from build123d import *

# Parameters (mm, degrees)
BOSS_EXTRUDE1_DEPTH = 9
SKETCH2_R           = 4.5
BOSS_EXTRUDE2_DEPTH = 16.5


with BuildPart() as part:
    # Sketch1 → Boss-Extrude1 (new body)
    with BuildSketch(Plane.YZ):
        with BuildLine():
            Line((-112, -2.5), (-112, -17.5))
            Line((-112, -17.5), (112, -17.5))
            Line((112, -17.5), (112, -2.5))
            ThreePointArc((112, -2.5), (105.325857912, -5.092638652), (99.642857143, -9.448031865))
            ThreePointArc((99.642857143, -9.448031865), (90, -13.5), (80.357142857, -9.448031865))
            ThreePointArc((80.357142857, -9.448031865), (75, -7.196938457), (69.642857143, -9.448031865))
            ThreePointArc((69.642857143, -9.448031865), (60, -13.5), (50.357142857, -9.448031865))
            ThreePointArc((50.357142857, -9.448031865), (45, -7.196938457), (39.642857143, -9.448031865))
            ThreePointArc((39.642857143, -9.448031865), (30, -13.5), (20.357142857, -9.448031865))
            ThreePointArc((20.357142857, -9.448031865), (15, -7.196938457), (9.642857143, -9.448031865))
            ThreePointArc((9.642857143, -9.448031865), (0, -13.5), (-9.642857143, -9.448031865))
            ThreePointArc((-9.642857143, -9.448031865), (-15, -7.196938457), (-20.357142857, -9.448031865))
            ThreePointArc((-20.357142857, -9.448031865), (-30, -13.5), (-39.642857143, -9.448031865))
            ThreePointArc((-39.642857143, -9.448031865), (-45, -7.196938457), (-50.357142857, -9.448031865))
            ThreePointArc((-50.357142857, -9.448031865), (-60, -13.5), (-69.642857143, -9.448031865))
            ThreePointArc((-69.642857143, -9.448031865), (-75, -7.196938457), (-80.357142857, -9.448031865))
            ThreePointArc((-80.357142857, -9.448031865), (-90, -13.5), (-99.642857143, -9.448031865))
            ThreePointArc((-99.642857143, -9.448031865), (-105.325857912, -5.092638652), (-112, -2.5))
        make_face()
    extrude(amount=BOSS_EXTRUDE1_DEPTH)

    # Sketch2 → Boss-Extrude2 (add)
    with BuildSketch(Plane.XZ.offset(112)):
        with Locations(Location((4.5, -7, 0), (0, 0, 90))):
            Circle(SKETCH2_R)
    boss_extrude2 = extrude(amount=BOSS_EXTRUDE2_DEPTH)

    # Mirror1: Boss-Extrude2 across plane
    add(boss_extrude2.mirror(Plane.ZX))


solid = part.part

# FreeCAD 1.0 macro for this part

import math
import FreeCAD as App
import Part
import Sketcher
Q = App.Units.Quantity

doc = App.newDocument("Part")
body = doc.addObject("PartDesign::Body", "Body")

sketch1 = doc.addObject("Sketcher::SketchObject", "Sketch")
body.addObject(sketch1)
sketch1.AttachmentSupport = (doc.YZ_Plane, [""])
sketch1.MapMode = "FlatFace"
sketch1.addGeometry([
    Part.LineSegment(App.Vector(-112, -2, 0), App.Vector(-112, -18, 0)),
    Part.LineSegment(App.Vector(-112, -18, 0), App.Vector(112, -18, 0)),
    Part.LineSegment(App.Vector(112, -18, 0), App.Vector(112, -2, 0)),
    Part.ArcOfCircle(Part.Circle(App.Vector(118, -27, 0), App.Vector(0, 0, 1), 25), math.radians(103), math.radians(136)),
    Part.ArcOfCircle(Part.Circle(App.Vector(90, 0, 0), App.Vector(0, 0, 1), 14), math.radians(-136), math.radians(-44)),
    Part.ArcOfCircle(Part.Circle(App.Vector(75, -15, 0), App.Vector(0, 0, 1), 8), math.radians(44), math.radians(136)),
    Part.ArcOfCircle(Part.Circle(App.Vector(60, 0, 0), App.Vector(0, 0, 1), 14), math.radians(-136), math.radians(-44)),
    Part.ArcOfCircle(Part.Circle(App.Vector(45, -15, 0), App.Vector(0, 0, 1), 8), math.radians(44), math.radians(136)),
    Part.ArcOfCircle(Part.Circle(App.Vector(30, 0, 0), App.Vector(0, 0, 1), 14), math.radians(-136), math.radians(-44)),
    Part.ArcOfCircle(Part.Circle(App.Vector(15, -15, 0), App.Vector(0, 0, 1), 8), math.radians(44), math.radians(136)),
    Part.ArcOfCircle(Part.Circle(App.Vector(0, 0, 0), App.Vector(0, 0, 1), 14), math.radians(-136), math.radians(-44)),
    Part.ArcOfCircle(Part.Circle(App.Vector(-15, -15, 0), App.Vector(0, 0, 1), 8), math.radians(44), math.radians(136)),
    Part.ArcOfCircle(Part.Circle(App.Vector(-30, 0, 0), App.Vector(0, 0, 1), 14), math.radians(-136), math.radians(-44)),
    Part.ArcOfCircle(Part.Circle(App.Vector(-45, -15, 0), App.Vector(0, 0, 1), 8), math.radians(44), math.radians(136)),
    Part.ArcOfCircle(Part.Circle(App.Vector(-60, 0, 0), App.Vector(0, 0, 1), 14), math.radians(-136), math.radians(-44)),
    Part.ArcOfCircle(Part.Circle(App.Vector(-75, -15, 0), App.Vector(0, 0, 1), 8), math.radians(44), math.radians(136)),
    Part.ArcOfCircle(Part.Circle(App.Vector(-90, 0, 0), App.Vector(0, 0, 1), 14), math.radians(-136), math.radians(-44)),
    Part.ArcOfCircle(Part.Circle(App.Vector(-118, -27, 0), App.Vector(0, 0, 1), 25), math.radians(44), math.radians(77)),
], False)
sketch1.addConstraint([
    Sketcher.Constraint("Coincident", 0, 2, 1, 1),
    Sketcher.Constraint("Coincident", 1, 2, 2, 1),
    Sketcher.Constraint("Coincident", 2, 2, 3, 1),
    Sketcher.Constraint("Tangent", 3, 2, 4, 2),
    Sketcher.Constraint("Tangent", 4, 1, 5, 1),
    Sketcher.Constraint("Tangent", 5, 2, 6, 2),
    Sketcher.Constraint("Tangent", 6, 1, 7, 1),
    Sketcher.Constraint("Tangent", 7, 2, 8, 2),
    Sketcher.Constraint("Tangent", 8, 1, 9, 1),
    Sketcher.Constraint("Tangent", 9, 2, 10, 2),
    Sketcher.Constraint("Tangent", 10, 1, 11, 1),
    Sketcher.Constraint("Tangent", 11, 2, 12, 2),
    Sketcher.Constraint("Tangent", 12, 1, 13, 1),
    Sketcher.Constraint("Tangent", 13, 2, 14, 2),
    Sketcher.Constraint("Tangent", 14, 1, 15, 1),
    Sketcher.Constraint("Tangent", 15, 2, 16, 2),
    Sketcher.Constraint("Tangent", 16, 1, 17, 1),
    Sketcher.Constraint("Coincident", 17, 2, 0, 1),
    Sketcher.Constraint("Vertical", 0),
    Sketcher.Constraint("Horizontal", 1),
    Sketcher.Constraint("Vertical", 2),
    Sketcher.Constraint("Coincident", 10, 3, -1, 1),
    Sketcher.Constraint("Equal", 4, 6),
    Sketcher.Constraint("Equal", 5, 7),
    Sketcher.Constraint("Equal", 6, 8),
    Sketcher.Constraint("Equal", 7, 9),
    Sketcher.Constraint("Equal", 8, 10),
    Sketcher.Constraint("Equal", 9, 11),
    Sketcher.Constraint("Equal", 10, 12),
    Sketcher.Constraint("Equal", 11, 13),
    Sketcher.Constraint("Equal", 12, 14),
    Sketcher.Constraint("Equal", 13, 15),
    Sketcher.Constraint("Equal", 14, 16),
    Sketcher.Constraint("Equal", 3, 17),
    Sketcher.Constraint("Symmetric", 8, 3, 12, 3, -1, 1),
    Sketcher.Constraint("Symmetric", 6, 3, 14, 3, -1, 1),
    Sketcher.Constraint("Symmetric", 4, 3, 16, 3, -1, 1),
    Sketcher.Constraint("Symmetric", 7, 3, 13, 3, -2),
    Sketcher.Constraint("Symmetric", 3, 3, 17, 3, -2),
    Sketcher.Constraint("Horizontal", 5, 3, 7, 3),
    Sketcher.Constraint("Horizontal", 7, 3, 9, 3),
    Sketcher.Constraint("Horizontal", 3, 2, 4, 1),
    Sketcher.Constraint("Horizontal", 2, 2, 17, 2),
    Sketcher.Constraint("Radius", 4, Q("13.5 mm")),
    Sketcher.Constraint("Radius", 5, Q("7.5 mm")),
    Sketcher.Constraint("DistanceX", 1, 1, 1, 2, Q("224 mm")),
    Sketcher.Constraint("DistanceY", 0, 2, 0, 1, Q("15 mm")),
    Sketcher.Constraint("DistanceX", -1, 1, 4, 3, Q("90 mm")),
    Sketcher.Constraint("DistanceY", 0, 2, -1, 1, Q("17.5 mm")),
])
pad1 = doc.addObject("PartDesign::Pad", "Pad")
body.addObject(pad1)
pad1.Profile = sketch1
pad1.Length = 9

sketch2 = doc.addObject("Sketcher::SketchObject", "Sketch001")
body.addObject(sketch2)
sketch2.AttachmentSupport = (doc.XZ_Plane, [""])
sketch2.MapMode = "FlatFace"
sketch2.AttachmentOffset = App.Placement(App.Vector(0, 0, 112), App.Rotation())
sketch2.addGeometry(Part.Circle(App.Vector(4.5, -7, 0), App.Vector(0, 0, 1), 4.5), False)
sketch2.addConstraint([
    Sketcher.Constraint("Diameter", 0, Q("9 mm")),
    Sketcher.Constraint("DistanceY", 0, 3, -1, 1, Q("7 mm")),
    Sketcher.Constraint("DistanceX", -1, 1, 0, 3, Q("4.5 mm")),
])
pad2 = doc.addObject("PartDesign::Pad", "Pad001")
body.addObject(pad2)
pad2.Profile = sketch2
pad2.Length = 16.5
doc.recompute()

mirrored = doc.addObject("PartDesign::Mirrored", "Mirrored")
body.addObject(mirrored)
mirrored.Originals = [pad2]
mirrored.MirrorPlane = (doc.XZ_Plane, [""])
body.Tip = mirrored

doc.recompute()
